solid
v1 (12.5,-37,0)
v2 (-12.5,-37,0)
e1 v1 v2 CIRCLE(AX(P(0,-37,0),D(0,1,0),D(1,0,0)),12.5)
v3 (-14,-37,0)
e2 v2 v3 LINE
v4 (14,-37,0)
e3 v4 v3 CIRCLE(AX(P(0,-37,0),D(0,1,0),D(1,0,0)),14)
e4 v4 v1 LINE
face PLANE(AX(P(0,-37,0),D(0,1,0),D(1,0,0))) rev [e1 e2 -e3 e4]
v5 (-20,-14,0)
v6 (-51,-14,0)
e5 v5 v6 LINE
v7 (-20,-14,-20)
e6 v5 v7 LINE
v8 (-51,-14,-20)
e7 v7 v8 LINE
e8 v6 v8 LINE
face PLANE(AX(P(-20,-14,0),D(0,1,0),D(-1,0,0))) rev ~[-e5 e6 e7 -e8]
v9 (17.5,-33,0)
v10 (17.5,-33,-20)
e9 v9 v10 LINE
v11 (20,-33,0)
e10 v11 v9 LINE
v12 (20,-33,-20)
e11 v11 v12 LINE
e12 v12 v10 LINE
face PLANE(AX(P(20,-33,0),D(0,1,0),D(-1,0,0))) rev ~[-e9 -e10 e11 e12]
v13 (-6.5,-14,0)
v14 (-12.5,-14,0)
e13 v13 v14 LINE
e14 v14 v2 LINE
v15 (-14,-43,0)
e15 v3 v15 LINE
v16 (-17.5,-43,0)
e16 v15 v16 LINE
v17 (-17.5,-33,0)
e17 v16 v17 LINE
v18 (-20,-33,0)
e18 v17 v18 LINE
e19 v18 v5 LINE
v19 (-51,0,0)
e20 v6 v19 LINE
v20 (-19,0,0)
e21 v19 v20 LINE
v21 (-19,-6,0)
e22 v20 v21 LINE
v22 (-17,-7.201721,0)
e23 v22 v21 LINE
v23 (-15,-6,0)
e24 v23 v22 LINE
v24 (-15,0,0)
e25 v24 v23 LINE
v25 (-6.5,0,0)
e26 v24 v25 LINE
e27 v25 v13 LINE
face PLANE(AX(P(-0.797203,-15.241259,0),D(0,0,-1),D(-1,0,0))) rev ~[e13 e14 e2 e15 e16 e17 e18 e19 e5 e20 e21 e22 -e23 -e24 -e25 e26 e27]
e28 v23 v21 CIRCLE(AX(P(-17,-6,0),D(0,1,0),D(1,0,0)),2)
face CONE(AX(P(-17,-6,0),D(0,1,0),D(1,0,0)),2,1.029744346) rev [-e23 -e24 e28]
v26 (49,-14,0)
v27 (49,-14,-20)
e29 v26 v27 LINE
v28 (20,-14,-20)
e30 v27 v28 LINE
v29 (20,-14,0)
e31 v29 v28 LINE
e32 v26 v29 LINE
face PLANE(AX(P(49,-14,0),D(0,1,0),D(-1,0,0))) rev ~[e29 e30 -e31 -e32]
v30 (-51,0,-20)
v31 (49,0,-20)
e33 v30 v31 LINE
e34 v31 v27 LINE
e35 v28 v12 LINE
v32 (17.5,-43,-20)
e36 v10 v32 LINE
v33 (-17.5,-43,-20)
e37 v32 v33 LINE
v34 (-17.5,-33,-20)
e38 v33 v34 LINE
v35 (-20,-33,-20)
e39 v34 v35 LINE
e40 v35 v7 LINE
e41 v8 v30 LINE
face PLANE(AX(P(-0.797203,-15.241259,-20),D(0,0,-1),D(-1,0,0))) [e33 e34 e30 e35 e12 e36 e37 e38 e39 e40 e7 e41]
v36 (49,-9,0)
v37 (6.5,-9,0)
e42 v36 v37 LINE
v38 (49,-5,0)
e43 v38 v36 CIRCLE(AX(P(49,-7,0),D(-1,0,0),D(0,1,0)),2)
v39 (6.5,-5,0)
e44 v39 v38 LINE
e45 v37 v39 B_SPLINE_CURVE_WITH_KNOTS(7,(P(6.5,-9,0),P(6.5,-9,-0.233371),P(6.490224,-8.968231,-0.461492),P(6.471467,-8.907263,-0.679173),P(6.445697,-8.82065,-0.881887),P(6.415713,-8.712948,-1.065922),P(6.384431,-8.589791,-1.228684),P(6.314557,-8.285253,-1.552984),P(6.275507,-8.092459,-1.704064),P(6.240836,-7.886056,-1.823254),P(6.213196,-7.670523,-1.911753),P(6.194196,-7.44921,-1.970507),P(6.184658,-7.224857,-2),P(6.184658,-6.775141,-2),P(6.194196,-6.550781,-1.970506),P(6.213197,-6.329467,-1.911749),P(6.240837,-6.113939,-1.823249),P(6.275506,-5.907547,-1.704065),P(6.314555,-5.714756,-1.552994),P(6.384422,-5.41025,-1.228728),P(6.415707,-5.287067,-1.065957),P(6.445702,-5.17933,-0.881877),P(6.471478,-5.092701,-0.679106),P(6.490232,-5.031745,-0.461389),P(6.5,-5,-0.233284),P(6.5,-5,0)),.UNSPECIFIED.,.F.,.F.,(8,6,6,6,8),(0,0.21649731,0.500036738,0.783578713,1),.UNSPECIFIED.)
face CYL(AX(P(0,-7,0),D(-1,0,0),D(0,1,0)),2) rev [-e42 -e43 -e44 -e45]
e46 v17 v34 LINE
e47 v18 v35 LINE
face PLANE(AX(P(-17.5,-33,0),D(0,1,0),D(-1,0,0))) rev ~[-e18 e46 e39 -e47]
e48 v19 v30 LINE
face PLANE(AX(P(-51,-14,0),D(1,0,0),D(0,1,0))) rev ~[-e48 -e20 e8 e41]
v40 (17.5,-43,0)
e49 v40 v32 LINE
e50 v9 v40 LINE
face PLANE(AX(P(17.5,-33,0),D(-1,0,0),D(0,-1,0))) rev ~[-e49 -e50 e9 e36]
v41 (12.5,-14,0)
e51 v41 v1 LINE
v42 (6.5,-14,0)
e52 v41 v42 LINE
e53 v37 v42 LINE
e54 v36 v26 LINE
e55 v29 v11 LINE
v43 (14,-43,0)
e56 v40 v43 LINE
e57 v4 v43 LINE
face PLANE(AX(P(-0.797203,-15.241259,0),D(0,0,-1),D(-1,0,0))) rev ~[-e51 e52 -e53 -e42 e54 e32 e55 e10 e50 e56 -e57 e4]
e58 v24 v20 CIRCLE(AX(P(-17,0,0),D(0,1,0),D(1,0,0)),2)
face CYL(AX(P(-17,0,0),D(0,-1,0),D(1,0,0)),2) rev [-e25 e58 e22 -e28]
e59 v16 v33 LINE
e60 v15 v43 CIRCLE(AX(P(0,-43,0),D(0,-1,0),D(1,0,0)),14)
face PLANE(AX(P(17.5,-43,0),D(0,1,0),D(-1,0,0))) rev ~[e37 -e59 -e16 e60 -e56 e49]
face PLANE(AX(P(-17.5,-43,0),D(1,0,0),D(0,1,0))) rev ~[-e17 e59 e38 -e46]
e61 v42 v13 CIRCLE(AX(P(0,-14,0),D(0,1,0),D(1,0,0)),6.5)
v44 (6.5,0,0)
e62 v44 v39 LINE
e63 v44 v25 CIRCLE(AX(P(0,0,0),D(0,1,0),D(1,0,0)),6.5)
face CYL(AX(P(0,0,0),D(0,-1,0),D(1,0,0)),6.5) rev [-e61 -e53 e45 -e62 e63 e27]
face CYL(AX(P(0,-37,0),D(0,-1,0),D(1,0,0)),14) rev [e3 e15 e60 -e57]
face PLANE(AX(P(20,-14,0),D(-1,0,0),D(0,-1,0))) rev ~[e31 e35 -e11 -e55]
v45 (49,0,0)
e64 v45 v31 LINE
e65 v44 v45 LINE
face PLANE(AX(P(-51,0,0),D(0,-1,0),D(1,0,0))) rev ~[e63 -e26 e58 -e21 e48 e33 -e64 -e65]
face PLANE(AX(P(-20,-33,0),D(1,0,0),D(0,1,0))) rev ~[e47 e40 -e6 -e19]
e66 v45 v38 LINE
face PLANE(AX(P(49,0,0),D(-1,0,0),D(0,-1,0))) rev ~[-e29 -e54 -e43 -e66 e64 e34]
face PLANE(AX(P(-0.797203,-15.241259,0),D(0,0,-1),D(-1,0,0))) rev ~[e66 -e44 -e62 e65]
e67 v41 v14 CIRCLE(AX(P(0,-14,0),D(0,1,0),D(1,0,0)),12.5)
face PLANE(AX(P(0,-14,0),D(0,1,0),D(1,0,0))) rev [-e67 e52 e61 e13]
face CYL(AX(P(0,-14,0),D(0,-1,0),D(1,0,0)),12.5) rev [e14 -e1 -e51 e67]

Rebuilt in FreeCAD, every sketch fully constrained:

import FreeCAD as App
import Part
import Sketcher

V = App.Vector
Q = App.Units.Quantity

doc = App.newDocument("Part")
body = doc.addObject("PartDesign::Body", "Body")

sketch1 = body.newObject("Sketcher::SketchObject", "Sketch")
sketch1.AttachmentSupport = (doc.getObject("XY_Plane"), [""])
sketch1.MapMode = "FlatFace"
sketch1.addGeometry([
    Part.LineSegment(V(49, 0, 0), V(-51, 0, 0)),
    Part.LineSegment(V(-51, 0, 0), V(-51, -14, 0)),
    Part.LineSegment(V(-51, -14, 0), V(-20, -14, 0)),
    Part.LineSegment(V(-20, -14, 0), V(-20, -33, 0)),
    Part.LineSegment(V(-20, -33, 0), V(-17.5, -33, 0)),
    Part.LineSegment(V(-17.5, -33, 0), V(-17.5, -43, 0)),
    Part.LineSegment(V(-17.5, -43, 0), V(17.5, -43, 0)),
    Part.LineSegment(V(17.5, -43, 0), V(17.5, -33, 0)),
    Part.LineSegment(V(17.5, -33, 0), V(20, -33, 0)),
    Part.LineSegment(V(20, -33, 0), V(20, -14, 0)),
    Part.LineSegment(V(20, -14, 0), V(49, -14, 0)),
    Part.LineSegment(V(49, -14, 0), V(49, 0, 0)),
], False)
sketch1.addConstraint([
    Sketcher.Constraint("Coincident", 0, 2, 1, 1),
    Sketcher.Constraint("Coincident", 1, 2, 2, 1),
    Sketcher.Constraint("Coincident", 2, 2, 3, 1),
    Sketcher.Constraint("Coincident", 3, 2, 4, 1),
    Sketcher.Constraint("Coincident", 4, 2, 5, 1),
    Sketcher.Constraint("Coincident", 5, 2, 6, 1),
    Sketcher.Constraint("Coincident", 6, 2, 7, 1),
    Sketcher.Constraint("Coincident", 7, 2, 8, 1),
    Sketcher.Constraint("Coincident", 8, 2, 9, 1),
    Sketcher.Constraint("Coincident", 9, 2, 10, 1),
    Sketcher.Constraint("Coincident", 10, 2, 11, 1),
    Sketcher.Constraint("Coincident", 11, 2, 0, 1),
    Sketcher.Constraint("Horizontal", 0),
    Sketcher.Constraint("Vertical", 1),
    Sketcher.Constraint("Horizontal", 2),
    Sketcher.Constraint("Vertical", 3),
    Sketcher.Constraint("Horizontal", 4),
    Sketcher.Constraint("Vertical", 5),
    Sketcher.Constraint("Horizontal", 6),
    Sketcher.Constraint("Vertical", 7),
    Sketcher.Constraint("Horizontal", 8),
    Sketcher.Constraint("Vertical", 9),
    Sketcher.Constraint("Horizontal", 10),
    Sketcher.Constraint("Vertical", 11),
    Sketcher.Constraint("Symmetric", 4, 2, 7, 2, -2),
    Sketcher.Constraint("Symmetric", 2, 2, 9, 2, -2),
    Sketcher.Constraint("PointOnObject", 0, 2, -1),
    Sketcher.Constraint("DistanceX", 0, 2, 0, 1, 100.0),
    Sketcher.Constraint("DistanceX", 2, 1, 2, 2, 31.0),
    Sketcher.Constraint("DistanceX", 6, 1, 6, 2, 35.0),
    Sketcher.Constraint("DistanceX", 10, 1, 10, 2, 29.0),
    Sketcher.Constraint("DistanceY", 1, 2, 1, 1, 14.0),
    Sketcher.Constraint("DistanceY", 3, 2, 3, 1, 19.0),
    Sketcher.Constraint("DistanceY", 5, 2, 5, 1, 10.0),
])
pad1 = body.newObject("PartDesign::Pad", "Pad")
pad1.Profile = sketch1
pad1.Length = 20
pad1.Reversed = True

sketch2 = body.newObject("Sketcher::SketchObject", "Sketch001")
sketch2.AttachmentSupport = (doc.getObject("XY_Plane"), [""])
sketch2.MapMode = "FlatFace"
sketch2.addGeometry([
    Part.LineSegment(V(6.5, 0, 0), V(0, 0, 0)),
    Part.LineSegment(V(0, 0, 0), V(0, -45, 0)),
    Part.LineSegment(V(0, -45, 0), V(14, -45, 0)),
    Part.LineSegment(V(14, -45, 0), V(14, -37, 0)),
    Part.LineSegment(V(14, -37, 0), V(12.5, -37, 0)),
    Part.LineSegment(V(12.5, -37, 0), V(12.5, -14, 0)),
    Part.LineSegment(V(12.5, -14, 0), V(6.5, -14, 0)),
    Part.LineSegment(V(6.5, -14, 0), V(6.5, 0, 0)),
], False)
sketch2.addConstraint([
    Sketcher.Constraint("Coincident", 0, 2, 1, 1),
    Sketcher.Constraint("Coincident", 1, 2, 2, 1),
    Sketcher.Constraint("Coincident", 2, 2, 3, 1),
    Sketcher.Constraint("Coincident", 3, 2, 4, 1),
    Sketcher.Constraint("Coincident", 4, 2, 5, 1),
    Sketcher.Constraint("Coincident", 5, 2, 6, 1),
    Sketcher.Constraint("Coincident", 6, 2, 7, 1),
    Sketcher.Constraint("Coincident", 7, 2, 0, 1),
    Sketcher.Constraint("Horizontal", 0),
    Sketcher.Constraint("Vertical", 1),
    Sketcher.Constraint("Horizontal", 2),
    Sketcher.Constraint("Vertical", 3),
    Sketcher.Constraint("Horizontal", 4),
    Sketcher.Constraint("Vertical", 5),
    Sketcher.Constraint("Horizontal", 6),
    Sketcher.Constraint("Vertical", 7),
    Sketcher.Constraint("Coincident", 0, 2, -1, 1),
    Sketcher.Constraint("Equal", 2, 7),
    Sketcher.Constraint("DistanceX", 2, 1, 2, 2, 14.0),
    Sketcher.Constraint("DistanceX", 6, 2, 6, 1, 6.0),
    Sketcher.Constraint("DistanceY", 1, 2, 1, 1, 45.0),
    Sketcher.Constraint("DistanceY", 3, 1, 3, 2, 8.0),
    Sketcher.Constraint("DistanceX", 0, 2, 0, 1, 6.5),
])
groove = body.newObject("PartDesign::Groove", "Groove")
groove.Profile = sketch2
groove.ReferenceAxis = (sketch2, ["V_Axis"])
groove.Angle = 360

sketch3 = body.newObject("Sketcher::SketchObject", "Sketch002")
sketch3.AttachmentSupport = (doc.getObject("YZ_Plane"), [""])
sketch3.MapMode = "FlatFace"
sketch3.addGeometry(Part.Circle(V(-7, 0, 0), V(0, 0, 1), 2), False)
sketch3.addConstraint([
    Sketcher.Constraint("PointOnObject", 0, 3, -1),
    Sketcher.Constraint("Diameter", 0, 4.0),
    Sketcher.Constraint("DistanceX", 0, 3, -1, 1, 7.0),
])
pocket1 = body.newObject("PartDesign::Pocket", "Pocket")
pocket1.Profile = sketch3
pocket1.Length = 50
pocket1.Reversed = True

sketch4 = body.newObject("Sketcher::SketchObject", "Sketch003")
sketch4.AttachmentSupport = (doc.getObject("XY_Plane"), [""])
sketch4.MapMode = "FlatFace"
sketch4.addGeometry([
    Part.LineSegment(V(-15, 0, 0), V(-17, 0, 0)),
    Part.LineSegment(V(-17, 0, 0), V(-17, -7.2, 0)),
    Part.LineSegment(V(-17, -7.2, 0), V(-15, -6, 0)),
    Part.LineSegment(V(-15, -6, 0), V(-15, 0, 0)),
], False)
sketch4.addGeometry(Part.LineSegment(V(-17, -7.2, 0), V(-17, 0, 0)), True)
sketch4.addConstraint([
    Sketcher.Constraint("Coincident", 0, 2, 1, 1),
    Sketcher.Constraint("Coincident", 1, 2, 2, 1),
    Sketcher.Constraint("Coincident", 2, 2, 3, 1),
    Sketcher.Constraint("Coincident", 3, 2, 0, 1),
    Sketcher.Constraint("Horizontal", 0),
    Sketcher.Constraint("Vertical", 1),
    Sketcher.Constraint("Vertical", 3),
    Sketcher.Constraint("Vertical", 4),
    Sketcher.Constraint("Coincident", 4, 1, 1, 2),
    Sketcher.Constraint("PointOnObject", 0, 2, -1),
    Sketcher.Constraint("PointOnObject", 4, 2, -1),
    Sketcher.Constraint("DistanceX", 0, 2, 0, 1, 2.0),
    Sketcher.Constraint("DistanceY", 3, 1, 3, 2, 6.0),
    Sketcher.Constraint("Angle", 2, Q("30.999995 deg")),
    Sketcher.Constraint("DistanceX", 0, 2, -1, 1, 17.0),
])
groove2 = body.newObject("PartDesign::Groove", "Groove001")
groove2.Profile = sketch4
groove2.ReferenceAxis = (sketch4, ["Axis0"])
groove2.Angle = 360

doc.recompute()
